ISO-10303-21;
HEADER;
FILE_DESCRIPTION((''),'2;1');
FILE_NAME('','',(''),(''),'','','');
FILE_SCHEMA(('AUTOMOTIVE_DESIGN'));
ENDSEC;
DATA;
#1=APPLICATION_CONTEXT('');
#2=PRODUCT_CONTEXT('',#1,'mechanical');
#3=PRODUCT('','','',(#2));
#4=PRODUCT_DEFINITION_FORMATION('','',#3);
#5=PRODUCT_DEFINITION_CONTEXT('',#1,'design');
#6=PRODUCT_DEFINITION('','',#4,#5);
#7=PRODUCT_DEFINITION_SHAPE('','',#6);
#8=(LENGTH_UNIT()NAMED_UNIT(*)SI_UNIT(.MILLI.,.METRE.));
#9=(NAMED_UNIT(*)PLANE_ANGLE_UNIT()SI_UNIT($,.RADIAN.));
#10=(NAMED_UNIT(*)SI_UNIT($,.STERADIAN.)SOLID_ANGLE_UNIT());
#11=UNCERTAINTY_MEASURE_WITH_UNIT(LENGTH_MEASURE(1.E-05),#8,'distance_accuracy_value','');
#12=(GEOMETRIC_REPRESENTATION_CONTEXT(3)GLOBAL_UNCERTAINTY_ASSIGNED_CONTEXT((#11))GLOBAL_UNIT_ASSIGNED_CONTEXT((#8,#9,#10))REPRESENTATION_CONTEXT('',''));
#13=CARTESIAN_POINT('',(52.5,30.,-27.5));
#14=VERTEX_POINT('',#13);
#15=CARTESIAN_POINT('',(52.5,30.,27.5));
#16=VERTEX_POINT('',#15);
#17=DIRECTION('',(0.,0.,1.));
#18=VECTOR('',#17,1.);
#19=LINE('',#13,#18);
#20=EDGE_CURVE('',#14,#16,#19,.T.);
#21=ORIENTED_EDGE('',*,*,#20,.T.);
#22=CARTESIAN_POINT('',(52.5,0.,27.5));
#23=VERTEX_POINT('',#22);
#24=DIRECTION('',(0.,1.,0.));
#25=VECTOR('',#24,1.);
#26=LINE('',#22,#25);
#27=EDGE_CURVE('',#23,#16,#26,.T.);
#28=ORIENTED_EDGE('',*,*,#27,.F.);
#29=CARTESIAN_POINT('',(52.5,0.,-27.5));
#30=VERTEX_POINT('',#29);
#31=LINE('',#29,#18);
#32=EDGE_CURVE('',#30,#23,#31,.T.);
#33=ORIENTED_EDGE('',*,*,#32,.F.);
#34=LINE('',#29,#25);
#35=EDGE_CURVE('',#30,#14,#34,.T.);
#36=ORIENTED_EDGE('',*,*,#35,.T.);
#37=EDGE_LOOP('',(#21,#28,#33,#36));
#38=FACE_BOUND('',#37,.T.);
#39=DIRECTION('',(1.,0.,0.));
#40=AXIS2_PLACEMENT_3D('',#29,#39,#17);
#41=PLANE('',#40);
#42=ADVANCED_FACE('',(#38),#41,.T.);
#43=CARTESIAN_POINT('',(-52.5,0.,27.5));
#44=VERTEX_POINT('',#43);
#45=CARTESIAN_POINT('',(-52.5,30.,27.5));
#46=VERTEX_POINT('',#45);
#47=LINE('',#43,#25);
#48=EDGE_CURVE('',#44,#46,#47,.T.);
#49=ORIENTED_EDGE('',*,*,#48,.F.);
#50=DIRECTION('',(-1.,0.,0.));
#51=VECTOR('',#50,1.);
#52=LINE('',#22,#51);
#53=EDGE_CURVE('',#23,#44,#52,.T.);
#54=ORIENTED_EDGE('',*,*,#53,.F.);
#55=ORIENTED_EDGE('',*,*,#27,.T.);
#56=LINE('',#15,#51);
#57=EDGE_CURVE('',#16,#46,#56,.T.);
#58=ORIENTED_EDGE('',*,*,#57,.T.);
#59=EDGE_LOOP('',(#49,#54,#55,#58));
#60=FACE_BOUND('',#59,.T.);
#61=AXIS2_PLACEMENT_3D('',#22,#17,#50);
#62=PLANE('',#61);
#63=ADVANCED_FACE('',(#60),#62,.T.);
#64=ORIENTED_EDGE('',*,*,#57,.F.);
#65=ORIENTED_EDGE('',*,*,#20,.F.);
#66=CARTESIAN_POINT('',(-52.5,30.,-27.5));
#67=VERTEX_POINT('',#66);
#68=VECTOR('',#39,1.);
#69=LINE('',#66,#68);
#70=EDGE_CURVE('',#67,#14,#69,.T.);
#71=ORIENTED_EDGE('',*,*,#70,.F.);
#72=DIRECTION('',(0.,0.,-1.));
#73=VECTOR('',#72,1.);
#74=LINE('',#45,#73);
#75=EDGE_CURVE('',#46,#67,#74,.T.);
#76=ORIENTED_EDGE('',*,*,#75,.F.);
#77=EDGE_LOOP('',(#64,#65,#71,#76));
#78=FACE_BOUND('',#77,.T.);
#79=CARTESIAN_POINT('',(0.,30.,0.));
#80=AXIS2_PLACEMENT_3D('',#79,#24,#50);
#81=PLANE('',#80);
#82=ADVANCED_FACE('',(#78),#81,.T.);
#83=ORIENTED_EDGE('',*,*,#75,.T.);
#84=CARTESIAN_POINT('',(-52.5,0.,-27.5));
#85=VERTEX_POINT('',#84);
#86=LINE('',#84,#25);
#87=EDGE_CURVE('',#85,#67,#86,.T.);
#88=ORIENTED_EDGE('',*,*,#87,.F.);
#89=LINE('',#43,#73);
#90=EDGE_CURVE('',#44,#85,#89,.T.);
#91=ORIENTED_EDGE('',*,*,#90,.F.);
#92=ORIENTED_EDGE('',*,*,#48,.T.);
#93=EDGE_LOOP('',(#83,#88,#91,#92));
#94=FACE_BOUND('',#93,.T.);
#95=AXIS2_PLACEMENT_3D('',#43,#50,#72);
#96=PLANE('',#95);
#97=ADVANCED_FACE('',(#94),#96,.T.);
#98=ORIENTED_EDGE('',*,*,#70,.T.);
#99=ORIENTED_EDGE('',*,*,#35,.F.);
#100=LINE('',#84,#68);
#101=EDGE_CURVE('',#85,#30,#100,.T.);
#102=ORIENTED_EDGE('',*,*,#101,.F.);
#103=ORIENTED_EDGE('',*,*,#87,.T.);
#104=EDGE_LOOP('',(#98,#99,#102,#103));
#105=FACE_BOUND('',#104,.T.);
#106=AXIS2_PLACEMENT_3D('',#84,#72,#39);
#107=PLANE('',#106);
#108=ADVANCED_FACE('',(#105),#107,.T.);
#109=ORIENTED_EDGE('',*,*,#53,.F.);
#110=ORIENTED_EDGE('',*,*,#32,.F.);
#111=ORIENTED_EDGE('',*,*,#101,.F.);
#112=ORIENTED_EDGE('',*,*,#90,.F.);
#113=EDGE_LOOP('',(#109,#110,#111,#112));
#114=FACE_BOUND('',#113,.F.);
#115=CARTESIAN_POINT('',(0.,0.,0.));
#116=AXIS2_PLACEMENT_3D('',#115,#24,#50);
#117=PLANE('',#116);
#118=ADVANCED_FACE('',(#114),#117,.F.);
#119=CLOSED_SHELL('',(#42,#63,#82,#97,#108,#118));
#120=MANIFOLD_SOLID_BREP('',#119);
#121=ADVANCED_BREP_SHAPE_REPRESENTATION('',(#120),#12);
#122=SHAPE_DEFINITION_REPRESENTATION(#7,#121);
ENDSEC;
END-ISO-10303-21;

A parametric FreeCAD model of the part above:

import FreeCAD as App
import Part
import Sketcher

V = App.Vector
Q = App.Units.Quantity

doc = App.newDocument("Part")
params = doc.addObject("Spreadsheet::Sheet", "Params")
for row, (alias, value) in enumerate([
    ("sketch1_width", "105 mm"),
    ("sketch1_height", "55 mm"),
    ("pad1_length", "30 mm"),
], start=1):
    params.set(f"A{row}", alias)
    params.set(f"B{row}", "=" + value)
    params.setAlias(f"B{row}", alias)

body = doc.addObject("PartDesign::Body", "Body")

sketch1 = body.newObject("Sketcher::SketchObject", "Sketch")
sketch1.AttachmentSupport = (doc.getObject("XZ_Plane"), [""])
sketch1.MapMode = "FlatFace"
sketch1.addGeometry([
    Part.LineSegment(V(-52.5, 27.5, 0), V(52.5, 27.5, 0)),
    Part.LineSegment(V(52.5, 27.5, 0), V(52.5, -27.5, 0)),
    Part.LineSegment(V(52.5, -27.5, 0), V(-52.5, -27.5, 0)),
    Part.LineSegment(V(-52.5, -27.5, 0), V(-52.5, 27.5, 0)),
], False)
sketch1.addConstraint([
    Sketcher.Constraint("Coincident", 0, 2, 1, 1),
    Sketcher.Constraint("Coincident", 1, 2, 2, 1),
    Sketcher.Constraint("Coincident", 2, 2, 3, 1),
    Sketcher.Constraint("Coincident", 3, 2, 0, 1),
    Sketcher.Constraint("Horizontal", 0),
    Sketcher.Constraint("Vertical", 1),
    Sketcher.Constraint("Horizontal", 2),
    Sketcher.Constraint("Vertical", 3),
    Sketcher.Constraint("Symmetric", 0, 2, 2, 2, -1, 1),
    Sketcher.Constraint("DistanceX", 0, 1, 0, 2, Q("105 mm")),
    Sketcher.Constraint("DistanceY", 1, 2, 1, 1, Q("55 mm")),
])
sketch1.setExpression("Constraints[9]", "Params.sketch1_width")
sketch1.setExpression("Constraints[10]", "Params.sketch1_height")
pad1 = body.newObject("PartDesign::Pad", "Pad")
pad1.Profile = sketch1
pad1.setExpression("Length", "Params.pad1_length")
pad1.Reversed = True

doc.recompute()
